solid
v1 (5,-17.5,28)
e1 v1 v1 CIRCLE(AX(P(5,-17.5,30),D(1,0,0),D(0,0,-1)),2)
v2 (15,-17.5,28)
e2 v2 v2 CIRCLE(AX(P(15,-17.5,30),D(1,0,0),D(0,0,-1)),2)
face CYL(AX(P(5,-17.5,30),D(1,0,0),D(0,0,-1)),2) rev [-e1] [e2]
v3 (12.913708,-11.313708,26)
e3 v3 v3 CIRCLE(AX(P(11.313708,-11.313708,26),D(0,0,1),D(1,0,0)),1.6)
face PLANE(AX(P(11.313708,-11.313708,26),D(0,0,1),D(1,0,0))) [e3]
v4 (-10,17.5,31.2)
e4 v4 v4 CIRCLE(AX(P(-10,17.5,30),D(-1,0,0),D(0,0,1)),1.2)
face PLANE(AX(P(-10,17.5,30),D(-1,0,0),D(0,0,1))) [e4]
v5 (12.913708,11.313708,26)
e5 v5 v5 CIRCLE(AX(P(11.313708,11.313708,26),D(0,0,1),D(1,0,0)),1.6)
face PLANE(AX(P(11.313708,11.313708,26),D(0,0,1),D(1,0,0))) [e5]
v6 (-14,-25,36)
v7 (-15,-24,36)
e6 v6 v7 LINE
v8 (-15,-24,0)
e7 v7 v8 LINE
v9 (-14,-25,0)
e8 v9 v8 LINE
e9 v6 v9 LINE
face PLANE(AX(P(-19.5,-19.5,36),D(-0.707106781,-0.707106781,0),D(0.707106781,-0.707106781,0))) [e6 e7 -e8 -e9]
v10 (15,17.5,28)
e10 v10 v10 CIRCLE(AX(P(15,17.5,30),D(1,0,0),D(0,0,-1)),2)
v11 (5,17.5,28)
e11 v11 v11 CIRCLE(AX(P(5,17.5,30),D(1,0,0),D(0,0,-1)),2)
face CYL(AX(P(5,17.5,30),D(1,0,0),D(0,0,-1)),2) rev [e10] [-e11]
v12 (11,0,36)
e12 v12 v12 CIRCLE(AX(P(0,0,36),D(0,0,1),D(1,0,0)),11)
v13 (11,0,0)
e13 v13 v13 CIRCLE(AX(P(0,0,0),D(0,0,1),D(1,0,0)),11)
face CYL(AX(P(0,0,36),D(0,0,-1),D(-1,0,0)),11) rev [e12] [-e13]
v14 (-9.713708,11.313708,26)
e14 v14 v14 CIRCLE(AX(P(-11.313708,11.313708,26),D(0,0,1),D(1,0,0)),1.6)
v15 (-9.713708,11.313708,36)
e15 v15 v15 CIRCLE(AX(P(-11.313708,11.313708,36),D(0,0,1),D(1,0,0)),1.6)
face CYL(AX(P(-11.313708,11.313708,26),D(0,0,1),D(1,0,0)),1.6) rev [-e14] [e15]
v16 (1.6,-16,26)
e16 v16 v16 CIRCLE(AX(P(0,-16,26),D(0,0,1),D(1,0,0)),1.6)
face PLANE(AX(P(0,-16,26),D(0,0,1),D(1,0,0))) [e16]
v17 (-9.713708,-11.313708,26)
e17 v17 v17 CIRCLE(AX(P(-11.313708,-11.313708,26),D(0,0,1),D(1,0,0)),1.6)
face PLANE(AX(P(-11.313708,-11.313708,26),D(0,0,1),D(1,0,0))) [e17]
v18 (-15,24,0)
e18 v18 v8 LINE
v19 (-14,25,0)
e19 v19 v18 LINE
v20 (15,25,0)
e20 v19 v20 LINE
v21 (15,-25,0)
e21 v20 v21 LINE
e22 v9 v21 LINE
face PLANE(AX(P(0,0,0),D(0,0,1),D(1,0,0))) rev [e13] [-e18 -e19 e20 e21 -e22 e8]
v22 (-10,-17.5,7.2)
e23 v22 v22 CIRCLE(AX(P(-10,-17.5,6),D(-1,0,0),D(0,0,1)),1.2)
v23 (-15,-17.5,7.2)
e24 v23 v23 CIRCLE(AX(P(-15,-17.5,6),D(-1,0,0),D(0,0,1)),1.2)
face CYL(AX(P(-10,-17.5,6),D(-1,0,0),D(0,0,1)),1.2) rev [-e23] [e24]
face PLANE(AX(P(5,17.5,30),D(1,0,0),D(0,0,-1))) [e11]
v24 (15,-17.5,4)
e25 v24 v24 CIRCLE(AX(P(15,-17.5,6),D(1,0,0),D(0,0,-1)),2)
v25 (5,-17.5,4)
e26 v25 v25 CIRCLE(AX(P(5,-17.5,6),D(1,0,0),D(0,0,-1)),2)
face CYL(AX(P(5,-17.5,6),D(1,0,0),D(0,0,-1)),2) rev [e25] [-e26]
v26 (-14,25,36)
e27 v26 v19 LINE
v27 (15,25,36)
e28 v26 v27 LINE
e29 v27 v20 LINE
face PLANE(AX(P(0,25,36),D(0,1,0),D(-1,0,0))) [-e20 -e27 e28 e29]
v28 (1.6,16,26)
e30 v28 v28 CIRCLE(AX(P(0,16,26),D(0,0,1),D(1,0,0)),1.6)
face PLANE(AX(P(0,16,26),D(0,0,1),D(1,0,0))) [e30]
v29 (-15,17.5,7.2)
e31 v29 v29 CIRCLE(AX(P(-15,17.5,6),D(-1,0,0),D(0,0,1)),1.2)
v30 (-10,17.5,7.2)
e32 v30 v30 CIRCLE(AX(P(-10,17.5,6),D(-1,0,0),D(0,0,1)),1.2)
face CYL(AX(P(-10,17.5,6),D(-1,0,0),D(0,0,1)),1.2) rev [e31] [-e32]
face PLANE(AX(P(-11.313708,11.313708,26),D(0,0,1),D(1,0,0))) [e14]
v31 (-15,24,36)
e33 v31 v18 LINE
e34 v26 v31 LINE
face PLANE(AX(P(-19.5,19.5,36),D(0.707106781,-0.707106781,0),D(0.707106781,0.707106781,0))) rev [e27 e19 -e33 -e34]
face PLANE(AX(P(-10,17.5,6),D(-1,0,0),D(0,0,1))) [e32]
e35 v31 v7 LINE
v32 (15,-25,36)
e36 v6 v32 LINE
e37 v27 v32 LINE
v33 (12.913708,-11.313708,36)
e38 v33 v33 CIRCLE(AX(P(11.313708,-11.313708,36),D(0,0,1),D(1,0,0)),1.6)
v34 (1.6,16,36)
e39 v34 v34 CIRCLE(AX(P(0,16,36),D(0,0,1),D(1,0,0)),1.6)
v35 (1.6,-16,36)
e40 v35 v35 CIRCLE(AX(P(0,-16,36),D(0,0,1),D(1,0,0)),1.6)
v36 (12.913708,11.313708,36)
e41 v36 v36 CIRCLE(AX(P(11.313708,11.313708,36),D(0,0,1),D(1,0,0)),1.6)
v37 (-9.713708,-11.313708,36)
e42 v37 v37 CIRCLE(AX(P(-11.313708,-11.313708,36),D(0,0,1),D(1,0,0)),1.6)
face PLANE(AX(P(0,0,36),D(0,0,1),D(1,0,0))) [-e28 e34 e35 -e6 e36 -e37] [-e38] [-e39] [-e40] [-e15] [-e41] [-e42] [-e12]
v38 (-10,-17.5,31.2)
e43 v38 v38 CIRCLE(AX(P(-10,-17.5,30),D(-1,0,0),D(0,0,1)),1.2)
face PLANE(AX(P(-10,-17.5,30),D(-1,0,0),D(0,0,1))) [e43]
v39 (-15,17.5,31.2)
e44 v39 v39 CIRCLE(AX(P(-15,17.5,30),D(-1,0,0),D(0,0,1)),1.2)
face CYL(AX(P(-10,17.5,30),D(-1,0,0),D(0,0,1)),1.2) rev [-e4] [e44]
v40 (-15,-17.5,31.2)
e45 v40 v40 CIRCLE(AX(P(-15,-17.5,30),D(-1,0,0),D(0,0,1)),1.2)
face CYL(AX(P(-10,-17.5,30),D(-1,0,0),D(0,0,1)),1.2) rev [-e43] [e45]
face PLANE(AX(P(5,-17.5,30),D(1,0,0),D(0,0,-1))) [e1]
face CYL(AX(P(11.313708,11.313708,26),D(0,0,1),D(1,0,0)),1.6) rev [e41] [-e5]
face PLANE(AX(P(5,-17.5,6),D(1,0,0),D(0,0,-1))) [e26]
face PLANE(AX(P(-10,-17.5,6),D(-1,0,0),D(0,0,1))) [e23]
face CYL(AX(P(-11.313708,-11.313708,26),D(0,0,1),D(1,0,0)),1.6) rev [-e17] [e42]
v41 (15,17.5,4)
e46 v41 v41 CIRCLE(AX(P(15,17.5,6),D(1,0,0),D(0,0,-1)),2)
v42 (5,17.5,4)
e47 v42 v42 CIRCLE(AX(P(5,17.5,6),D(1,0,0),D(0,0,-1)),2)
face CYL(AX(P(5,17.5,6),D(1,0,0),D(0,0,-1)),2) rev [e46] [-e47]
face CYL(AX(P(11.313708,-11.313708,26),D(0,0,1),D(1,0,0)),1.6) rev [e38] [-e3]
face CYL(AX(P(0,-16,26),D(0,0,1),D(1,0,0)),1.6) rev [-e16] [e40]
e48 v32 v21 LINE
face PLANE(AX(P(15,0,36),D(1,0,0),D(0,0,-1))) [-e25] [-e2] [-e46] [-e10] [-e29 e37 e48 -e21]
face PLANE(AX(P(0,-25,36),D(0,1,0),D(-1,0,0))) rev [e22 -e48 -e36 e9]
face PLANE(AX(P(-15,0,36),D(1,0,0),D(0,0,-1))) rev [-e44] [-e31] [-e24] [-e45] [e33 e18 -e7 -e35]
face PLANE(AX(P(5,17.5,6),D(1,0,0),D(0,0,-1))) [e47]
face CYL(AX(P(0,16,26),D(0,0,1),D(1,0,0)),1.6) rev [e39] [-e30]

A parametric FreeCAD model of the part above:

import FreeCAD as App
import Part
import Sketcher

V = App.Vector


def add_polygon(sketch, points):
    """Adds a closed chain of lines whose ends are joined by coincident constraints."""
    first, n = sketch.GeometryCount, len(points)
    for a, b in zip(points, points[1:] + points[:1]):
        sketch.addGeometry(Part.LineSegment(App.Vector(*a, 0), App.Vector(*b, 0)), False)
    for i in range(n):
        sketch.addConstraint(Sketcher.Constraint("Coincident", first + i, 2, first + (i + 1) % n, 1))

doc = App.newDocument("Part")
params = doc.addObject("Spreadsheet::Sheet", "Params")
for row, (alias, value) in enumerate([
    ("sketch1_diameter", "22 mm"),
    ("sketch1_width", "29 mm"),
    ("sketch1_height", "48 mm"),
    ("sketch1_height2", "50 mm"),
    ("pad1_length", "36 mm"),
    ("sketch2_diameter", "3.2 mm"),
    ("pocket1_length", "10 mm"),
    ("sketch3_diameter", "4 mm"),
    ("pocket2_length", "10 mm"),
    ("sketch4_diameter", "2.4 mm"),
    ("pocket3_length", "5 mm"),
], start=1):
    params.set(f"A{row}", alias)
    params.set(f"B{row}", "=" + value)
    params.setAlias(f"B{row}", alias)

body = doc.addObject("PartDesign::Body", "Body")

# Sketch on XY plane
sketch1 = body.newObject("Sketcher::SketchObject", "Sketch")
sketch1.AttachmentSupport = (doc.getObject("XY_Plane"), [""])
sketch1.MapMode = "FlatFace"
add_polygon(sketch1, [(15, 25), (-14, 25), (-15, 24), (-15, -24), (-14, -25), (15, -25)])  # lines 0-5
sketch1.addGeometry(Part.Circle(V(0, 0, 0), V(0, 0, 1), 11), False)  # 6
sketch1.addConstraint(Sketcher.Constraint("Horizontal", 0))
sketch1.addConstraint(Sketcher.Constraint("Vertical", 2))
sketch1.addConstraint(Sketcher.Constraint("Horizontal", 4))
sketch1.addConstraint(Sketcher.Constraint("Vertical", 5))
sketch1.addConstraint(Sketcher.Constraint("Coincident", 6, 3, -1, 1))
sketch1.addConstraint(Sketcher.Constraint("Symmetric", 0, 2, 3, 2, -1))
sketch1.addConstraint(Sketcher.Constraint("Perpendicular", 1, 3))
sketch1.addConstraint(Sketcher.Constraint("Equal", 1, 3))
sketch1.addConstraint(Sketcher.Constraint("Diameter", 6, 22.0))
sketch1.addConstraint(Sketcher.Constraint("DistanceX", 0, 2, 0, 1, 29.0))
sketch1.addConstraint(Sketcher.Constraint("DistanceY", 2, 2, 2, 1, 48.0))
sketch1.addConstraint(Sketcher.Constraint("DistanceY", 5, 1, 5, 2, 50.0))
sketch1.addConstraint(Sketcher.Constraint("DistanceX", 0, 2, -1, 1, 14.0))
sketch1.setExpression("Constraints[14]", "Params.sketch1_diameter")
sketch1.setExpression("Constraints[15]", "Params.sketch1_width")
sketch1.setExpression("Constraints[16]", "Params.sketch1_height")
sketch1.setExpression("Constraints[17]", "Params.sketch1_height2")
pad1 = body.newObject("PartDesign::Pad", "Pad")
pad1.Profile = sketch1
pad1.setExpression("Length", "Params.pad1_length")

# Sketch on XY plane
sketch2 = body.newObject("Sketcher::SketchObject", "Sketch001")
sketch2.AttachmentSupport = (doc.getObject("XY_Plane"), [""])
sketch2.MapMode = "FlatFace"
sketch2.AttachmentOffset = App.Placement(V(0, 0, 36), App.Rotation())
sketch2.addGeometry(Part.Circle(V(0, 16, 0), V(0, 0, 1), 1.6), False)
sketch2.addGeometry(Part.Circle(V(11.3, 11.3, 0), V(0, 0, 1), 1.6), False)
sketch2.addGeometry(Part.Circle(V(11.3, -11.3, 0), V(0, 0, 1), 1.6), False)
sketch2.addGeometry(Part.Circle(V(0, -16, 0), V(0, 0, 1), 1.6), False)
sketch2.addGeometry(Part.Circle(V(-11.3, -11.3, 0), V(0, 0, 1), 1.6), False)
sketch2.addGeometry(Part.Circle(V(-11.3, 11.3, 0), V(0, 0, 1), 1.6), False)
sketch2.addConstraint(Sketcher.Constraint("Equal", 0, 1))
sketch2.addConstraint(Sketcher.Constraint("Equal", 1, 2))
sketch2.addConstraint(Sketcher.Constraint("Equal", 2, 3))
sketch2.addConstraint(Sketcher.Constraint("Equal", 3, 4))
sketch2.addConstraint(Sketcher.Constraint("Equal", 4, 5))
sketch2.addConstraint(Sketcher.Constraint("Symmetric", 0, 3, 3, 3, -1, 1))
sketch2.addConstraint(Sketcher.Constraint("Symmetric", 1, 3, 4, 3, -1, 1))
sketch2.addConstraint(Sketcher.Constraint("Symmetric", 2, 3, 5, 3, -1, 1))
sketch2.addConstraint(Sketcher.Constraint("Symmetric", 2, 3, 4, 3, -2))
sketch2.addConstraint(Sketcher.Constraint("PointOnObject", 0, 3, -2))
sketch2.addConstraint(Sketcher.Constraint("Diameter", 0, 3.2))
sketch2.addConstraint(Sketcher.Constraint("DistanceY", -1, 1, 0, 3, 16.0))
sketch2.addConstraint(Sketcher.Constraint("DistanceX", -1, 1, 1, 3, 11.313708))
sketch2.addConstraint(Sketcher.Constraint("DistanceY", -1, 1, 1, 3, 11.313708))
sketch2.setExpression("Constraints[10]", "Params.sketch2_diameter")
pocket1 = body.newObject("PartDesign::Pocket", "Pocket")
pocket1.Profile = sketch2
pocket1.setExpression("Length", "Params.pocket1_length")

# Sketch on YZ plane
sketch3 = body.newObject("Sketcher::SketchObject", "Sketch002")
sketch3.AttachmentSupport = (doc.getObject("YZ_Plane"), [""])
sketch3.MapMode = "FlatFace"
sketch3.AttachmentOffset = App.Placement(V(0, 0, 15), App.Rotation())
sketch3.addGeometry(Part.Circle(V(17.5, 6, 0), V(0, 0, 1), 2), False)
sketch3.addGeometry(Part.Circle(V(17.5, 30, 0), V(0, 0, 1), 2), False)
sketch3.addGeometry(Part.Circle(V(-17.5, 30, 0), V(0, 0, 1), 2), False)
sketch3.addGeometry(Part.Circle(V(-17.5, 6, 0), V(0, 0, 1), 2), False)
sketch3.addConstraint(Sketcher.Constraint("Equal", 0, 1))
sketch3.addConstraint(Sketcher.Constraint("Equal", 1, 2))
sketch3.addConstraint(Sketcher.Constraint("Equal", 2, 3))
sketch3.addConstraint(Sketcher.Constraint("Symmetric", 1, 3, 2, 3, -2))
sketch3.addConstraint(Sketcher.Constraint("Symmetric", 0, 3, 3, 3, -2))
sketch3.addConstraint(Sketcher.Constraint("Vertical", 0, 3, 1, 3))
sketch3.addConstraint(Sketcher.Constraint("Diameter", 0, 4.0))
sketch3.addConstraint(Sketcher.Constraint("DistanceY", -1, 1, 0, 3, 6.0))
sketch3.addConstraint(Sketcher.Constraint("DistanceY", -1, 1, 1, 3, 30.0))
sketch3.addConstraint(Sketcher.Constraint("DistanceX", 2, 3, 1, 3, 35.0))
sketch3.setExpression("Constraints[6]", "Params.sketch3_diameter")
pocket2 = body.newObject("PartDesign::Pocket", "Pocket001")
pocket2.Profile = sketch3
pocket2.setExpression("Length", "Params.pocket2_length")

# Sketch on YZ plane
sketch4 = body.newObject("Sketcher::SketchObject", "Sketch003")
sketch4.AttachmentSupport = (doc.getObject("YZ_Plane"), [""])
sketch4.MapMode = "FlatFace"
sketch4.AttachmentOffset = App.Placement(V(0, 0, -15), App.Rotation())
sketch4.addGeometry(Part.Circle(V(17.5, 6, 0), V(0, 0, 1), 1.2), False)
sketch4.addGeometry(Part.Circle(V(17.5, 30, 0), V(0, 0, 1), 1.2), False)
sketch4.addGeometry(Part.Circle(V(-17.5, 6, 0), V(0, 0, 1), 1.2), False)
sketch4.addGeometry(Part.Circle(V(-17.5, 30, 0), V(0, 0, 1), 1.2), False)
sketch4.addConstraint(Sketcher.Constraint("Equal", 0, 1))
sketch4.addConstraint(Sketcher.Constraint("Equal", 1, 2))
sketch4.addConstraint(Sketcher.Constraint("Equal", 2, 3))
sketch4.addConstraint(Sketcher.Constraint("Symmetric", 0, 3, 2, 3, -2))
sketch4.addConstraint(Sketcher.Constraint("Symmetric", 1, 3, 3, 3, -2))
sketch4.addConstraint(Sketcher.Constraint("Vertical", 0, 3, 1, 3))
sketch4.addConstraint(Sketcher.Constraint("Diameter", 0, 2.4))
sketch4.addConstraint(Sketcher.Constraint("DistanceY", -1, 1, 0, 3, 6.0))
sketch4.addConstraint(Sketcher.Constraint("DistanceY", -1, 1, 1, 3, 30.0))
sketch4.addConstraint(Sketcher.Constraint("DistanceX", 2, 3, 0, 3, 35.0))
sketch4.setExpression("Constraints[6]", "Params.sketch4_diameter")
pocket3 = body.newObject("PartDesign::Pocket", "Pocket002")
pocket3.Profile = sketch4
pocket3.setExpression("Length", "Params.pocket3_length")
pocket3.Reversed = True

doc.recompute()
